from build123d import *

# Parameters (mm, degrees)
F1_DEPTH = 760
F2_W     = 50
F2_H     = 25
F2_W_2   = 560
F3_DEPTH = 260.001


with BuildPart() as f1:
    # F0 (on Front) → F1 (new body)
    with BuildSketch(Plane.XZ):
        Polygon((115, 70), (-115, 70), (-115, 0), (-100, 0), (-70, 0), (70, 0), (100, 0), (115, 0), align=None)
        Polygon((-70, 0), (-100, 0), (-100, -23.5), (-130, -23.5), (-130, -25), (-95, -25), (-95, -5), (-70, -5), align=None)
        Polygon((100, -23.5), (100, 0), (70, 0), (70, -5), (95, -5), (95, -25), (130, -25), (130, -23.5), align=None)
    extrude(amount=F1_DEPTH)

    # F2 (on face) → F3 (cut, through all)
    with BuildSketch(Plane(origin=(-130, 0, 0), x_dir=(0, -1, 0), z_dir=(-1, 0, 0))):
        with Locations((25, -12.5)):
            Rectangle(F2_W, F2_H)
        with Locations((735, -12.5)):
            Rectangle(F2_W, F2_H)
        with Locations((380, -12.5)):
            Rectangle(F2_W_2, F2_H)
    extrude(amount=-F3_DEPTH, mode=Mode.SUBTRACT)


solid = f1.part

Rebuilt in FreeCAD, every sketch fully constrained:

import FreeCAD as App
import Part
import Sketcher


def add_polygon(sketch, points):
    """Adds a closed chain of lines whose ends are joined by coincident constraints."""
    first, n = sketch.GeometryCount, len(points)
    for a, b in zip(points, points[1:] + points[:1]):
        sketch.addGeometry(Part.LineSegment(App.Vector(*a, 0), App.Vector(*b, 0)), False)
    for i in range(n):
        sketch.addConstraint(Sketcher.Constraint("Coincident", first + i, 2, first + (i + 1) % n, 1))

doc = App.newDocument("Part")
body = doc.addObject("PartDesign::Body", "Body")

# Sketch on XZ plane
sketch1 = body.newObject("Sketcher::SketchObject", "Sketch")
sketch1.AttachmentSupport = (doc.getObject("XZ_Plane"), [""])
sketch1.MapMode = "FlatFace"
add_polygon(sketch1, [(115, 70), (-115, 70), (-115, 0), (-100, 0), (-100, -23.5), (-130, -23.5), (-130, -25), (-95, -25), (-95, -5), (-70, -5), (-70, 0), (70, 0), (70, -5), (95, -5), (95, -25), (130, -25), (130, -23.5), (100, -23.5), (100, 0), (115, 0)])  # lines 0-19
sketch1.addConstraint([
    Sketcher.Constraint("Horizontal", 0),
    Sketcher.Constraint("Vertical", 1),
    Sketcher.Constraint("Horizontal", 2),
    Sketcher.Constraint("Vertical", 3),
    Sketcher.Constraint("Horizontal", 4),
    Sketcher.Constraint("Vertical", 5),
    Sketcher.Constraint("Horizontal", 6),
    Sketcher.Constraint("Vertical", 7),
    Sketcher.Constraint("Horizontal", 8),
    Sketcher.Constraint("Vertical", 9),
    Sketcher.Constraint("Horizontal", 10),
    Sketcher.Constraint("Vertical", 11),
    Sketcher.Constraint("Horizontal", 12),
    Sketcher.Constraint("Vertical", 13),
    Sketcher.Constraint("Horizontal", 14),
    Sketcher.Constraint("Vertical", 15),
    Sketcher.Constraint("Horizontal", 16),
    Sketcher.Constraint("Vertical", 17),
    Sketcher.Constraint("Horizontal", 18),
    Sketcher.Constraint("Vertical", 19),
    Sketcher.Constraint("Symmetric", 9, 2, 10, 2, -1, 1),
    Sketcher.Constraint("Symmetric", 2, 2, 17, 2, -1, 1),
    Sketcher.Constraint("Symmetric", 7, 2, 12, 2, -2),
    Sketcher.Constraint("Symmetric", 5, 2, 14, 2, -2),
    Sketcher.Constraint("Symmetric", 1, 2, 18, 2, -2),
    Sketcher.Constraint("Horizontal", 4, 2, 15, 2),
    Sketcher.Constraint("DistanceX", 0, 2, 0, 1, 230.0),
    Sketcher.Constraint("DistanceX", 2, 1, 2, 2, 15.0),
    Sketcher.Constraint("DistanceX", 4, 2, 4, 1, 30.0),
    Sketcher.Constraint("DistanceX", 6, 1, 6, 2, 35.0),
    Sketcher.Constraint("DistanceX", 8, 1, 8, 2, 25.0),
    Sketcher.Constraint("DistanceY", 1, 2, 1, 1, 70.0),
    Sketcher.Constraint("DistanceY", 7, 1, 7, 2, 20.0),
    Sketcher.Constraint("DistanceY", 9, 1, 9, 2, 5.0),
    Sketcher.Constraint("DistanceY", 3, 2, 3, 1, 23.5),
])
pad1 = body.newObject("PartDesign::Pad", "Pad")
pad1.Profile = sketch1
pad1.Length = 760

# Sketch on YZ plane
sketch2 = body.newObject("Sketcher::SketchObject", "Sketch001")
sketch2.AttachmentSupport = (doc.getObject("YZ_Plane"), [""])
sketch2.MapMode = "FlatFace"
sketch2.AttachmentOffset = App.Placement(App.Vector(0, 0, -130), App.Rotation())
add_polygon(sketch2, [(0, 0), (0, -25), (-50, -25), (-50, 0)])  # lines 0-3
add_polygon(sketch2, [(-710, 0), (-710, -25), (-760, -25), (-760, 0)])  # lines 4-7
add_polygon(sketch2, [(-100, 0), (-100, -25), (-660, -25), (-660, 0)])  # lines 8-11
sketch2.addConstraint([
    Sketcher.Constraint("Vertical", 0),
    Sketcher.Constraint("Horizontal", 1),
    Sketcher.Constraint("Vertical", 2),
    Sketcher.Constraint("Horizontal", 3),
    Sketcher.Constraint("Vertical", 4),
    Sketcher.Constraint("Horizontal", 5),
    Sketcher.Constraint("Vertical", 6),
    Sketcher.Constraint("Horizontal", 7),
    Sketcher.Constraint("Vertical", 8),
    Sketcher.Constraint("Horizontal", 9),
    Sketcher.Constraint("Vertical", 10),
    Sketcher.Constraint("Horizontal", 11),
    Sketcher.Constraint("Coincident", 3, 2, -1, 1),
    Sketcher.Constraint("PointOnObject", 6, 2, -1),
    Sketcher.Constraint("PointOnObject", 10, 2, -1),
    Sketcher.Constraint("Horizontal", 1, 2, 4, 2),
    Sketcher.Constraint("Horizontal", 5, 2, 8, 2),
    Sketcher.Constraint("Equal", 3, 5),
    Sketcher.Constraint("DistanceX", 1, 2, 1, 1, 50.0),
    Sketcher.Constraint("DistanceX", 9, 2, 9, 1, 560.0),
    Sketcher.Constraint("DistanceY", 0, 2, 0, 1, 25.0),
    Sketcher.Constraint("DistanceX", 4, 2, -1, 1, 710.0),
    Sketcher.Constraint("DistanceX", 8, 2, -1, 1, 100.0),
])
pocket1 = body.newObject("PartDesign::Pocket", "Pocket")
pocket1.Profile = sketch2
pocket1.Type = "ThroughAll"
pocket1.Reversed = True

doc.recompute()
